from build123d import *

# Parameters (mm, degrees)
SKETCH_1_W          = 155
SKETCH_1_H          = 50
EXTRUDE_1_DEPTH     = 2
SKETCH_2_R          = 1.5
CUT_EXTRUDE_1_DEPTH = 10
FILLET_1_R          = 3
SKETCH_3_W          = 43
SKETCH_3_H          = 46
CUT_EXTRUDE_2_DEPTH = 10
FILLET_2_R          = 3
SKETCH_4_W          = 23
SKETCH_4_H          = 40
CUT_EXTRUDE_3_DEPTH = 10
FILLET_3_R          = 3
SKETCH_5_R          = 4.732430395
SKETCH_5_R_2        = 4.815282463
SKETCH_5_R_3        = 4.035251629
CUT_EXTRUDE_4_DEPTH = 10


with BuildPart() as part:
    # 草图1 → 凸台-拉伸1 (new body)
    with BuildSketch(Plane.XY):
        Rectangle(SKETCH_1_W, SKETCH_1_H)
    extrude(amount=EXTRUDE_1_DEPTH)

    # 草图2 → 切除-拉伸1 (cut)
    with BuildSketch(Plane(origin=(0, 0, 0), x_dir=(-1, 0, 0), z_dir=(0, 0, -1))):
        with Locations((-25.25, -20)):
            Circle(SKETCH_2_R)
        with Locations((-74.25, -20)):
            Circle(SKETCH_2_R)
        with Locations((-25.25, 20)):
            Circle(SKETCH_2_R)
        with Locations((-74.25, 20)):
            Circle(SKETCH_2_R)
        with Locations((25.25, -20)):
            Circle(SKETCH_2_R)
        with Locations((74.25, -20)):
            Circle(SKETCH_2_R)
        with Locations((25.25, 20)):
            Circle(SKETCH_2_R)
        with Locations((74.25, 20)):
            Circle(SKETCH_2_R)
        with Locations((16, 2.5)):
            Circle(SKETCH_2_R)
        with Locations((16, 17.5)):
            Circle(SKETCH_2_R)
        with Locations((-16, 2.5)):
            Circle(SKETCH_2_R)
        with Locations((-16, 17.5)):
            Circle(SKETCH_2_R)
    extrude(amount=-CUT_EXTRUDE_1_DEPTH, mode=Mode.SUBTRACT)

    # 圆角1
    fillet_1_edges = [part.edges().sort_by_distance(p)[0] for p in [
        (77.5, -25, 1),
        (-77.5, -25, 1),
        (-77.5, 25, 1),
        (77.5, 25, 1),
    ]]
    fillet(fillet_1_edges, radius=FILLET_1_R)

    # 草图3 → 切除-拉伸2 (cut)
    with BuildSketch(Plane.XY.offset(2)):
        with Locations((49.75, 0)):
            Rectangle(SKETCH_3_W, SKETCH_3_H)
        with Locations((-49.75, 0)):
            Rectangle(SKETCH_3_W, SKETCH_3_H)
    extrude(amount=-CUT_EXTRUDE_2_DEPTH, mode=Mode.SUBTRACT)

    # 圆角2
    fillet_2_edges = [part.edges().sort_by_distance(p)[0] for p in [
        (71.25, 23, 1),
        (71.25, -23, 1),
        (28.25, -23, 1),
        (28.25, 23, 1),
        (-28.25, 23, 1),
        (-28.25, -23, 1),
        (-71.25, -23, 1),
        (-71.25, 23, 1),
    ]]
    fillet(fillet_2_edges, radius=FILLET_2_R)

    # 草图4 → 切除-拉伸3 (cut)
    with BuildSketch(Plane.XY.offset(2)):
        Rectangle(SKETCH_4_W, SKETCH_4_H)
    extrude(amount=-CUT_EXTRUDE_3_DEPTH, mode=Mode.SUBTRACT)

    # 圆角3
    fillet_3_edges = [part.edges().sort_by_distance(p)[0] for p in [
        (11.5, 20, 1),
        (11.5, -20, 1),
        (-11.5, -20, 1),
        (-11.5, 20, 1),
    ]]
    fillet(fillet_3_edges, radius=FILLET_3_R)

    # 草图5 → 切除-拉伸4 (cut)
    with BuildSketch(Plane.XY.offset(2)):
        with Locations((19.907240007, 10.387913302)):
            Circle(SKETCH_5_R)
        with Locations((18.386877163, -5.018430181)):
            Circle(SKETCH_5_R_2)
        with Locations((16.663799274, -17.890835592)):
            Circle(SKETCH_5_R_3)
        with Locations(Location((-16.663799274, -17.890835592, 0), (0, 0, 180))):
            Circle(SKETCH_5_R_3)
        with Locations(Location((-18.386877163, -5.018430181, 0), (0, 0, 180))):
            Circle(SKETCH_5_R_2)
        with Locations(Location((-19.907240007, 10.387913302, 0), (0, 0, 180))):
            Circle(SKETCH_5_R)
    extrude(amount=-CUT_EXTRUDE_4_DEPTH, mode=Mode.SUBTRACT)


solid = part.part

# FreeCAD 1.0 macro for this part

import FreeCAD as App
import Part
import Sketcher
from FreeCAD import Vector
Q = App.Units.Quantity


def edges_at(feature, points):
    """Names of the edges that pass closest to the given points."""
    edges = feature.Shape.Edges
    near = lambda p: min(range(len(edges)), key=lambda i: edges[i].distToShape(Part.Vertex(*p))[0])
    return sorted({f"Edge{near(p) + 1}" for p in points})

doc = App.newDocument("Part")
body = doc.addObject("PartDesign::Body", "Body")

# Sketch on XY plane
sketch1 = body.newObject("Sketcher::SketchObject", "Sketch")
sketch1.AttachmentSupport = (doc.getObject("XY_Plane"), [""])
sketch1.MapMode = "FlatFace"
sketch1.addGeometry([
    Part.LineSegment(Vector(-77.5, 25, 0), Vector(-77.5, -25, 0)),
    Part.LineSegment(Vector(-77.5, -25, 0), Vector(77.5, -25, 0)),
    Part.LineSegment(Vector(77.5, -25, 0), Vector(77.5, 25, 0)),
    Part.LineSegment(Vector(77.5, 25, 0), Vector(-77.5, 25, 0)),
], False)
sketch1.addConstraint([
    Sketcher.Constraint("Coincident", 0, 2, 1, 1),
    Sketcher.Constraint("Coincident", 1, 2, 2, 1),
    Sketcher.Constraint("Coincident", 2, 2, 3, 1),
    Sketcher.Constraint("Coincident", 3, 2, 0, 1),
    Sketcher.Constraint("Vertical", 0),
    Sketcher.Constraint("Horizontal", 1),
    Sketcher.Constraint("Vertical", 2),
    Sketcher.Constraint("Horizontal", 3),
    Sketcher.Constraint("Symmetric", 0, 2, 2, 2, -1, 1),
    Sketcher.Constraint("DistanceX", 1, 1, 1, 2, Q("155 mm")),
    Sketcher.Constraint("DistanceY", 0, 2, 0, 1, Q("50 mm")),
])
pad1 = body.newObject("PartDesign::Pad", "Pad")
pad1.Profile = sketch1
pad1.Length = 2

# Sketch on XY plane
sketch2 = body.newObject("Sketcher::SketchObject", "Sketch001")
sketch2.AttachmentSupport = (doc.getObject("XY_Plane"), [""])
sketch2.MapMode = "FlatFace"
sketch2.addGeometry([
    Part.Circle(Vector(25.25, -20, 0), Vector(0, 0, 1), 1.5),  # 0
    Part.Circle(Vector(74.25, -20, 0), Vector(0, 0, 1), 1.5),  # 1
    Part.Circle(Vector(25.25, 20, 0), Vector(0, 0, 1), 1.5),  # 2
    Part.Circle(Vector(74.25, 20, 0), Vector(0, 0, 1), 1.5),  # 3
    Part.Circle(Vector(-25.25, -20, 0), Vector(0, 0, 1), 1.5),  # 4
    Part.Circle(Vector(-74.25, -20, 0), Vector(0, 0, 1), 1.5),  # 5
    Part.Circle(Vector(-25.25, 20, 0), Vector(0, 0, 1), 1.5),  # 6
    Part.Circle(Vector(-74.25, 20, 0), Vector(0, 0, 1), 1.5),  # 7
    Part.Circle(Vector(-16, 2.5, 0), Vector(0, 0, 1), 1.5),  # 8
    Part.Circle(Vector(-16, 17.5, 0), Vector(0, 0, 1), 1.5),  # 9
    Part.Circle(Vector(16, 2.5, 0), Vector(0, 0, 1), 1.5),  # 10
    Part.Circle(Vector(16, 17.5, 0), Vector(0, 0, 1), 1.5),  # 11
], False)
sketch2.addConstraint([
    Sketcher.Constraint("Equal", 0, 1),
    Sketcher.Constraint("Equal", 1, 2),
    Sketcher.Constraint("Equal", 2, 3),
    Sketcher.Constraint("Equal", 3, 4),
    Sketcher.Constraint("Equal", 4, 5),
    Sketcher.Constraint("Equal", 5, 6),
    Sketcher.Constraint("Equal", 6, 7),
    Sketcher.Constraint("Equal", 7, 8),
    Sketcher.Constraint("Equal", 8, 9),
    Sketcher.Constraint("Equal", 9, 10),
    Sketcher.Constraint("Equal", 10, 11),
    Sketcher.Constraint("Symmetric", 2, 3, 4, 3, -1, 1),
    Sketcher.Constraint("Symmetric", 3, 3, 5, 3, -1, 1),
    Sketcher.Constraint("Symmetric", 0, 3, 6, 3, -1, 1),
    Sketcher.Constraint("Symmetric", 1, 3, 7, 3, -1, 1),
    Sketcher.Constraint("Symmetric", 0, 3, 4, 3, -2),
    Sketcher.Constraint("Symmetric", 1, 3, 5, 3, -2),
    Sketcher.Constraint("Symmetric", 8, 3, 10, 3, -2),
    Sketcher.Constraint("Symmetric", 9, 3, 11, 3, -2),
    Sketcher.Constraint("Horizontal", 0, 3, 1, 3),
    Sketcher.Constraint("Vertical", 8, 3, 9, 3),
    Sketcher.Constraint("Diameter", 0, Q("3 mm")),
    Sketcher.Constraint("DistanceY", 0, 3, -1, 1, Q("20 mm")),
    Sketcher.Constraint("DistanceX", 8, 3, -1, 1, Q("16 mm")),
    Sketcher.Constraint("DistanceX", 0, 3, 1, 3, Q("49 mm")),
    Sketcher.Constraint("DistanceY", 8, 3, 9, 3, Q("15 mm")),
    Sketcher.Constraint("DistanceY", -1, 1, 8, 3, Q("2.5 mm")),
    Sketcher.Constraint("DistanceX", 4, 3, 0, 3, Q("50.5 mm")),
])
pocket1 = body.newObject("PartDesign::Pocket", "Pocket")
pocket1.Profile = sketch2
pocket1.Length = 10
pocket1.Reversed = True
doc.recompute()

fillet = body.newObject("PartDesign::Fillet", "Fillet")
fillet.Base = (pocket1, edges_at(pocket1, [
    (77.5, -25, 1),
    (-77.5, -25, 1),
    (-77.5, 25, 1),
    (77.5, 25, 1),
]))
fillet.Radius = 3

# Sketch on XY plane
sketch3 = body.newObject("Sketcher::SketchObject", "Sketch002")
sketch3.AttachmentSupport = (doc.getObject("XY_Plane"), [""])
sketch3.MapMode = "FlatFace"
sketch3.AttachmentOffset = App.Placement(Vector(0, 0, 2), App.Rotation())
sketch3.addGeometry([
    Part.LineSegment(Vector(28.25, 23, 0), Vector(28.25, -23, 0)),  # 0
    Part.LineSegment(Vector(28.25, -23, 0), Vector(71.25, -23, 0)),  # 1
    Part.LineSegment(Vector(71.25, -23, 0), Vector(71.25, 23, 0)),  # 2
    Part.LineSegment(Vector(71.25, 23, 0), Vector(28.25, 23, 0)),  # 3
    Part.LineSegment(Vector(-71.25, 23, 0), Vector(-71.25, -23, 0)),  # 4
    Part.LineSegment(Vector(-71.25, -23, 0), Vector(-28.25, -23, 0)),  # 5
    Part.LineSegment(Vector(-28.25, -23, 0), Vector(-28.25, 23, 0)),  # 6
    Part.LineSegment(Vector(-28.25, 23, 0), Vector(-71.25, 23, 0)),  # 7
], False)
sketch3.addConstraint([
    Sketcher.Constraint("Coincident", 0, 2, 1, 1),
    Sketcher.Constraint("Coincident", 1, 2, 2, 1),
    Sketcher.Constraint("Coincident", 2, 2, 3, 1),
    Sketcher.Constraint("Coincident", 3, 2, 0, 1),
    Sketcher.Constraint("Coincident", 4, 2, 5, 1),
    Sketcher.Constraint("Coincident", 5, 2, 6, 1),
    Sketcher.Constraint("Coincident", 6, 2, 7, 1),
    Sketcher.Constraint("Coincident", 7, 2, 4, 1),
    Sketcher.Constraint("Vertical", 0),
    Sketcher.Constraint("Horizontal", 1),
    Sketcher.Constraint("Vertical", 2),
    Sketcher.Constraint("Horizontal", 3),
    Sketcher.Constraint("Vertical", 4),
    Sketcher.Constraint("Horizontal", 5),
    Sketcher.Constraint("Vertical", 6),
    Sketcher.Constraint("Horizontal", 7),
    Sketcher.Constraint("Symmetric", 2, 2, 4, 2, -1, 1),
    Sketcher.Constraint("Symmetric", 0, 2, 6, 2, -1, 1),
    Sketcher.Constraint("Horizontal", 1, 2, 4, 2),
    Sketcher.Constraint("DistanceX", 1, 1, 1, 2, Q("43 mm")),
    Sketcher.Constraint("DistanceY", 0, 2, 0, 1, Q("46 mm")),
    Sketcher.Constraint("DistanceX", 4, 2, 0, 2, Q("99.5 mm")),
])
pocket2 = body.newObject("PartDesign::Pocket", "Pocket001")
pocket2.Profile = sketch3
pocket2.Length = 10
doc.recompute()

fillet2 = body.newObject("PartDesign::Fillet", "Fillet001")
fillet2.Base = (pocket2, edges_at(pocket2, [
    (71.25, 23, 1),
    (71.25, -23, 1),
    (28.25, -23, 1),
    (28.25, 23, 1),
    (-28.25, 23, 1),
    (-28.25, -23, 1),
    (-71.25, -23, 1),
    (-71.25, 23, 1),
]))
fillet2.Radius = 3

# Sketch on XY plane
sketch4 = body.newObject("Sketcher::SketchObject", "Sketch003")
sketch4.AttachmentSupport = (doc.getObject("XY_Plane"), [""])
sketch4.MapMode = "FlatFace"
sketch4.AttachmentOffset = App.Placement(Vector(0, 0, 2), App.Rotation())
sketch4.addGeometry([
    Part.LineSegment(Vector(-11.5, 20, 0), Vector(-11.5, -20, 0)),
    Part.LineSegment(Vector(-11.5, -20, 0), Vector(11.5, -20, 0)),
    Part.LineSegment(Vector(11.5, -20, 0), Vector(11.5, 20, 0)),
    Part.LineSegment(Vector(11.5, 20, 0), Vector(-11.5, 20, 0)),
], False)
sketch4.addConstraint([
    Sketcher.Constraint("Coincident", 0, 2, 1, 1),
    Sketcher.Constraint("Coincident", 1, 2, 2, 1),
    Sketcher.Constraint("Coincident", 2, 2, 3, 1),
    Sketcher.Constraint("Coincident", 3, 2, 0, 1),
    Sketcher.Constraint("Vertical", 0),
    Sketcher.Constraint("Horizontal", 1),
    Sketcher.Constraint("Vertical", 2),
    Sketcher.Constraint("Horizontal", 3),
    Sketcher.Constraint("Symmetric", 0, 2, 2, 2, -1, 1),
    Sketcher.Constraint("DistanceX", 1, 1, 1, 2, Q("23 mm")),
    Sketcher.Constraint("DistanceY", 0, 2, 0, 1, Q("40 mm")),
])
pocket3 = body.newObject("PartDesign::Pocket", "Pocket002")
pocket3.Profile = sketch4
pocket3.Length = 10
doc.recompute()

fillet3 = body.newObject("PartDesign::Fillet", "Fillet002")
fillet3.Base = (pocket3, edges_at(pocket3, [
    (11.5, 20, 1),
    (11.5, -20, 1),
    (-11.5, -20, 1),
    (-11.5, 20, 1),
]))
fillet3.Radius = 3

# Sketch on XY plane
sketch5 = body.newObject("Sketcher::SketchObject", "Sketch004")
sketch5.AttachmentSupport = (doc.getObject("XY_Plane"), [""])
sketch5.MapMode = "FlatFace"
sketch5.AttachmentOffset = App.Placement(Vector(0, 0, 2), App.Rotation())
sketch5.addGeometry([
    Part.Circle(Vector(19.90724, 10.387913, 0), Vector(0, 0, 1), 4.73243),  # 0
    Part.Circle(Vector(18.386877, -5.01843, 0), Vector(0, 0, 1), 4.815282),  # 1
    Part.Circle(Vector(16.663799, -17.890836, 0), Vector(0, 0, 1), 4.035252),  # 2
    Part.Circle(Vector(-16.663799, -17.890836, 0), Vector(0, 0, 1), 4.035252),  # 3
    Part.Circle(Vector(-18.386877, -5.01843, 0), Vector(0, 0, 1), 4.815282),  # 4
    Part.Circle(Vector(-19.90724, 10.387913, 0), Vector(0, 0, 1), 4.73243),  # 5
], False)
sketch5.addConstraint([
    Sketcher.Constraint("Equal", 2, 3),
    Sketcher.Constraint("Equal", 1, 4),
    Sketcher.Constraint("Equal", 0, 5),
    Sketcher.Constraint("Symmetric", 2, 3, 3, 3, -2),
    Sketcher.Constraint("Symmetric", 1, 3, 4, 3, -2),
    Sketcher.Constraint("Symmetric", 0, 3, 5, 3, -2),
    Sketcher.Constraint("Diameter", 0, Q("9.464861 mm")),
    Sketcher.Constraint("Diameter", 1, Q("9.630565 mm")),
    Sketcher.Constraint("Diameter", 2, Q("8.070503 mm")),
    Sketcher.Constraint("DistanceX", -1, 1, 2, 3, Q("16.663799 mm")),
    Sketcher.Constraint("DistanceX", -1, 1, 0, 3, Q("19.90724 mm")),
    Sketcher.Constraint("DistanceY", 1, 3, -1, 1, Q("5.01843 mm")),
    Sketcher.Constraint("DistanceY", 2, 3, 0, 3, Q("28.278749 mm")),
    Sketcher.Constraint("DistanceY", -1, 1, 0, 3, Q("10.387913 mm")),
    Sketcher.Constraint("DistanceX", -1, 1, 1, 3, Q("18.386877 mm")),
])
pocket4 = body.newObject("PartDesign::Pocket", "Pocket003")
pocket4.Profile = sketch5
pocket4.Length = 10

doc.recompute()
